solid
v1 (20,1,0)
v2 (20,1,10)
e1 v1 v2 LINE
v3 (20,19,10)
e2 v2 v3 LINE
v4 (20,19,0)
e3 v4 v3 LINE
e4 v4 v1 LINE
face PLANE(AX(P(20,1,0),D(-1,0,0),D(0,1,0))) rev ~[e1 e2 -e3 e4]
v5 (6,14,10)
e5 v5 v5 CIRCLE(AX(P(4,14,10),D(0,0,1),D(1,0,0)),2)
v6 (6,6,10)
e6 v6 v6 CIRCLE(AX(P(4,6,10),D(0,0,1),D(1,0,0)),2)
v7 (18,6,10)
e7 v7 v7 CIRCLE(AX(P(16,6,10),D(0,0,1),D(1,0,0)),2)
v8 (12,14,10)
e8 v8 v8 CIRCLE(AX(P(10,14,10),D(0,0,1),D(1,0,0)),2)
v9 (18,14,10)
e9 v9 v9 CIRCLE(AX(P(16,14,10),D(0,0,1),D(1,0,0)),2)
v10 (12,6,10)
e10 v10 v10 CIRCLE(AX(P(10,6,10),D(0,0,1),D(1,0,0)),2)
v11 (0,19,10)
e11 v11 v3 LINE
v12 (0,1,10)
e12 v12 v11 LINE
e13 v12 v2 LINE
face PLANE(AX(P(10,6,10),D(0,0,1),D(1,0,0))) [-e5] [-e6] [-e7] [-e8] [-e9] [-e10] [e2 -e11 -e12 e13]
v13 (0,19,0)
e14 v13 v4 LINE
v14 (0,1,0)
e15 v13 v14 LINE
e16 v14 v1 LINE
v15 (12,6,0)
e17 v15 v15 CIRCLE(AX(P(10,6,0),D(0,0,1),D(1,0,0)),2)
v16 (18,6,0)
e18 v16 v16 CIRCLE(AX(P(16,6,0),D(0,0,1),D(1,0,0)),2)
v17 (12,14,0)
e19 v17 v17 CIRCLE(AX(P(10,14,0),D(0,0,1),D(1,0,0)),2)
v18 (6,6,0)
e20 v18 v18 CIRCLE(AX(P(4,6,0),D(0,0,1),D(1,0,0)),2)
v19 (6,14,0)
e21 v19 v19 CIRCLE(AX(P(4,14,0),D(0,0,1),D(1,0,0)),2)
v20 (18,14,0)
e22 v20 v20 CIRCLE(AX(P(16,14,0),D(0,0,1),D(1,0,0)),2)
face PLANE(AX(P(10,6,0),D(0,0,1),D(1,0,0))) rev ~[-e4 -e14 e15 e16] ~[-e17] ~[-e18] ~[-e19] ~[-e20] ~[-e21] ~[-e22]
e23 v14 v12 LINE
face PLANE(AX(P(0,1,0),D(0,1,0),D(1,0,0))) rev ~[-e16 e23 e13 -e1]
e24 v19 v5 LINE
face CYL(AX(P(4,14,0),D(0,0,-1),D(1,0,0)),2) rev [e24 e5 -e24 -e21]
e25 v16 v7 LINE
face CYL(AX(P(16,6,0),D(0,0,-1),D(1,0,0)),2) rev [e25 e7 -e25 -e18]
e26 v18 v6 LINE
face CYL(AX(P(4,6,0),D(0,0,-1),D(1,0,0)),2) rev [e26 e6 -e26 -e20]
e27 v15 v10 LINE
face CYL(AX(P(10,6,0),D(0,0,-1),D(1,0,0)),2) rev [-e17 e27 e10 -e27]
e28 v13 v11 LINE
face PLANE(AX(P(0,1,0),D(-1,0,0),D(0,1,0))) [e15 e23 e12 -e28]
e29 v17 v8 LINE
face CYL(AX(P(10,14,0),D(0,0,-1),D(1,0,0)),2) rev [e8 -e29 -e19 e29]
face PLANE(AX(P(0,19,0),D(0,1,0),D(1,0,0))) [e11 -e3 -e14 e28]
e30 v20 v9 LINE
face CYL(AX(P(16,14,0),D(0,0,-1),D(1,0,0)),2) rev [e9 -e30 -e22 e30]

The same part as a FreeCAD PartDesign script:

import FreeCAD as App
import Part
import Sketcher

V = App.Vector

doc = App.newDocument("Part")
params = doc.addObject("Spreadsheet::Sheet", "Params")
for row, (alias, value) in enumerate([
    ("sketch1_diameter", "4 mm"),
    ("pad1_length", "10 mm"),
    ("sketch2_diameter", "4 mm"),
    ("pad2_length", "10 mm"),
    ("sketch3_diameter", "4 mm"),
    ("pad3_length", "10 mm"),
    ("sketch4_width", "20 mm"),
    ("sketch4_height", "10 mm"),
    ("pad4_length", "10 mm"),
    ("sketch5_diameter", "4 mm"),
    ("pad5_length", "10 mm"),
    ("sketch6_diameter", "4 mm"),
    ("pad6_length", "10 mm"),
    ("sketch7_diameter", "4 mm"),
    ("pad7_length", "10 mm"),
    ("sketch8_width", "20 mm"),
    ("sketch8_height", "10 mm"),
    ("pad8_length", "10 mm"),
], start=1):
    params.set(f"A{row}", alias)
    params.set(f"B{row}", "=" + value)
    params.setAlias(f"B{row}", alias)

body = doc.addObject("PartDesign::Body", "Body")

# Sketch on XY plane
sketch1 = body.newObject("Sketcher::SketchObject", "Sketch")
sketch1.AttachmentSupport = (doc.getObject("XY_Plane"), [""])
sketch1.MapMode = "FlatFace"
sketch1.addGeometry(Part.Circle(V(10, 5, 0), V(0, 0, 1), 2), False)
sketch1.addConstraint(Sketcher.Constraint("Diameter", 0, 4.0))
sketch1.addConstraint(Sketcher.Constraint("DistanceX", -1, 1, 0, 3, 10.0))
sketch1.addConstraint(Sketcher.Constraint("DistanceY", -1, 1, 0, 3, 5.0))
sketch1.setExpression("Constraints[0]", "Params.sketch1_diameter")
pad1 = body.newObject("PartDesign::Pad", "Pad")
pad1.Profile = sketch1
pad1.setExpression("Length", "Params.pad1_length")
body2 = doc.addObject("PartDesign::Body", "Body001")

# Sketch on XY plane
sketch2 = body2.newObject("Sketcher::SketchObject", "Sketch001")
sketch2.AttachmentSupport = (doc.getObject("XY_Plane001"), [""])
sketch2.MapMode = "FlatFace"
sketch2.addGeometry(Part.Circle(V(16, 5, 0), V(0, 0, 1), 2), False)
sketch2.addConstraint(Sketcher.Constraint("Diameter", 0, 4.0))
sketch2.addConstraint(Sketcher.Constraint("DistanceX", -1, 1, 0, 3, 16.0))
sketch2.addConstraint(Sketcher.Constraint("DistanceY", -1, 1, 0, 3, 5.0))
sketch2.setExpression("Constraints[0]", "Params.sketch2_diameter")
pad2 = body2.newObject("PartDesign::Pad", "Pad001")
pad2.Profile = sketch2
pad2.setExpression("Length", "Params.pad2_length")
body3 = doc.addObject("PartDesign::Body", "Body002")

# Sketch on XY plane
sketch3 = body3.newObject("Sketcher::SketchObject", "Sketch002")
sketch3.AttachmentSupport = (doc.getObject("XY_Plane002"), [""])
sketch3.MapMode = "FlatFace"
sketch3.addGeometry(Part.Circle(V(4, 5, 0), V(0, 0, 1), 2), False)
sketch3.addConstraint(Sketcher.Constraint("Diameter", 0, 4.0))
sketch3.addConstraint(Sketcher.Constraint("DistanceX", -1, 1, 0, 3, 4.0))
sketch3.addConstraint(Sketcher.Constraint("DistanceY", -1, 1, 0, 3, 5.0))
sketch3.setExpression("Constraints[0]", "Params.sketch3_diameter")
pad3 = body3.newObject("PartDesign::Pad", "Pad002")
pad3.Profile = sketch3
pad3.setExpression("Length", "Params.pad3_length")
body4 = doc.addObject("PartDesign::Body", "Body003")

# Sketch on XY plane
sketch4 = body4.newObject("Sketcher::SketchObject", "Sketch003")
sketch4.AttachmentSupport = (doc.getObject("XY_Plane003"), [""])
sketch4.MapMode = "FlatFace"
sketch4.addGeometry(Part.LineSegment(V(0, 10, 0), V(0, 0, 0)), False)
sketch4.addGeometry(Part.LineSegment(V(0, 0, 0), V(20, 0, 0)), False)
sketch4.addGeometry(Part.LineSegment(V(20, 0, 0), V(20, 10, 0)), False)
sketch4.addGeometry(Part.LineSegment(V(20, 10, 0), V(0, 10, 0)), False)
sketch4.addConstraint(Sketcher.Constraint("Coincident", 0, 2, 1, 1))
sketch4.addConstraint(Sketcher.Constraint("Coincident", 1, 2, 2, 1))
sketch4.addConstraint(Sketcher.Constraint("Coincident", 2, 2, 3, 1))
sketch4.addConstraint(Sketcher.Constraint("Coincident", 3, 2, 0, 1))
sketch4.addConstraint(Sketcher.Constraint("Vertical", 0))
sketch4.addConstraint(Sketcher.Constraint("Horizontal", 1))
sketch4.addConstraint(Sketcher.Constraint("Vertical", 2))
sketch4.addConstraint(Sketcher.Constraint("Horizontal", 3))
sketch4.addConstraint(Sketcher.Constraint("Coincident", 0, 2, -1, 1))
sketch4.addConstraint(Sketcher.Constraint("DistanceX", 1, 1, 1, 2, 20.0))
sketch4.addConstraint(Sketcher.Constraint("DistanceY", 0, 2, 0, 1, 10.0))
sketch4.setExpression("Constraints[9]", "Params.sketch4_width")
sketch4.setExpression("Constraints[10]", "Params.sketch4_height")
pad4 = body4.newObject("PartDesign::Pad", "Pad003")
pad4.Profile = sketch4
pad4.setExpression("Length", "Params.pad4_length")
doc.recompute()

boolean = body4.newObject("PartDesign::Boolean", "Boolean")
boolean.Type = "Cut"
boolean.addObjects([body3])
doc.recompute()

boolean2 = body4.newObject("PartDesign::Boolean", "Boolean001")
boolean2.Type = "Cut"
boolean2.addObjects([body2])
doc.recompute()

boolean3 = body4.newObject("PartDesign::Boolean", "Boolean002")
boolean3.Type = "Cut"
boolean3.addObjects([body])
body5 = doc.addObject("PartDesign::Body", "Body004")
doc.recompute()

body4.Placement = App.Placement(V(0, 9, 0), App.Rotation(V(0, 0, 1), 0))
boolean4 = body5.newObject("PartDesign::Boolean", "Boolean003")
boolean4.Type = "Fuse"
boolean4.addObjects([body4])
body6 = doc.addObject("PartDesign::Body", "Body005")

# Sketch on XY plane
sketch5 = body6.newObject("Sketcher::SketchObject", "Sketch004")
sketch5.AttachmentSupport = (doc.getObject("XY_Plane005"), [""])
sketch5.MapMode = "FlatFace"
sketch5.addGeometry(Part.Circle(V(10, 5, 0), V(0, 0, 1), 2), False)
sketch5.addConstraint(Sketcher.Constraint("Diameter", 0, 4.0))
sketch5.addConstraint(Sketcher.Constraint("DistanceX", -1, 1, 0, 3, 10.0))
sketch5.addConstraint(Sketcher.Constraint("DistanceY", -1, 1, 0, 3, 5.0))
sketch5.setExpression("Constraints[0]", "Params.sketch5_diameter")
pad5 = body6.newObject("PartDesign::Pad", "Pad004")
pad5.Profile = sketch5
pad5.setExpression("Length", "Params.pad5_length")
body7 = doc.addObject("PartDesign::Body", "Body006")

# Sketch on XY plane
sketch6 = body7.newObject("Sketcher::SketchObject", "Sketch005")
sketch6.AttachmentSupport = (doc.getObject("XY_Plane006"), [""])
sketch6.MapMode = "FlatFace"
sketch6.addGeometry(Part.Circle(V(16, 5, 0), V(0, 0, 1), 2), False)
sketch6.addConstraint(Sketcher.Constraint("Diameter", 0, 4.0))
sketch6.addConstraint(Sketcher.Constraint("DistanceX", -1, 1, 0, 3, 16.0))
sketch6.addConstraint(Sketcher.Constraint("DistanceY", -1, 1, 0, 3, 5.0))
sketch6.setExpression("Constraints[0]", "Params.sketch6_diameter")
pad6 = body7.newObject("PartDesign::Pad", "Pad005")
pad6.Profile = sketch6
pad6.setExpression("Length", "Params.pad6_length")
body8 = doc.addObject("PartDesign::Body", "Body007")

# Sketch on XY plane
sketch7 = body8.newObject("Sketcher::SketchObject", "Sketch006")
sketch7.AttachmentSupport = (doc.getObject("XY_Plane007"), [""])
sketch7.MapMode = "FlatFace"
sketch7.addGeometry(Part.Circle(V(4, 5, 0), V(0, 0, 1), 2), False)
sketch7.addConstraint(Sketcher.Constraint("Diameter", 0, 4.0))
sketch7.addConstraint(Sketcher.Constraint("DistanceX", -1, 1, 0, 3, 4.0))
sketch7.addConstraint(Sketcher.Constraint("DistanceY", -1, 1, 0, 3, 5.0))
sketch7.setExpression("Constraints[0]", "Params.sketch7_diameter")
pad7 = body8.newObject("PartDesign::Pad", "Pad006")
pad7.Profile = sketch7
pad7.setExpression("Length", "Params.pad7_length")
body9 = doc.addObject("PartDesign::Body", "Body008")

# Sketch on XY plane
sketch8 = body9.newObject("Sketcher::SketchObject", "Sketch007")
sketch8.AttachmentSupport = (doc.getObject("XY_Plane008"), [""])
sketch8.MapMode = "FlatFace"
sketch8.addGeometry(Part.LineSegment(V(0, 10, 0), V(0, 0, 0)), False)
sketch8.addGeometry(Part.LineSegment(V(0, 0, 0), V(20, 0, 0)), False)
sketch8.addGeometry(Part.LineSegment(V(20, 0, 0), V(20, 10, 0)), False)
sketch8.addGeometry(Part.LineSegment(V(20, 10, 0), V(0, 10, 0)), False)
sketch8.addConstraint(Sketcher.Constraint("Coincident", 0, 2, 1, 1))
sketch8.addConstraint(Sketcher.Constraint("Coincident", 1, 2, 2, 1))
sketch8.addConstraint(Sketcher.Constraint("Coincident", 2, 2, 3, 1))
sketch8.addConstraint(Sketcher.Constraint("Coincident", 3, 2, 0, 1))
sketch8.addConstraint(Sketcher.Constraint("Vertical", 0))
sketch8.addConstraint(Sketcher.Constraint("Horizontal", 1))
sketch8.addConstraint(Sketcher.Constraint("Vertical", 2))
sketch8.addConstraint(Sketcher.Constraint("Horizontal", 3))
sketch8.addConstraint(Sketcher.Constraint("Coincident", 0, 2, -1, 1))
sketch8.addConstraint(Sketcher.Constraint("DistanceX", 1, 1, 1, 2, 20.0))
sketch8.addConstraint(Sketcher.Constraint("DistanceY", 0, 2, 0, 1, 10.0))
sketch8.setExpression("Constraints[9]", "Params.sketch8_width")
sketch8.setExpression("Constraints[10]", "Params.sketch8_height")
pad8 = body9.newObject("PartDesign::Pad", "Pad007")
pad8.Profile = sketch8
pad8.setExpression("Length", "Params.pad8_length")
doc.recompute()

boolean5 = body9.newObject("PartDesign::Boolean", "Boolean004")
boolean5.Type = "Cut"
boolean5.addObjects([body8])
doc.recompute()

boolean6 = body9.newObject("PartDesign::Boolean", "Boolean005")
boolean6.Type = "Cut"
boolean6.addObjects([body7])
doc.recompute()

boolean7 = body9.newObject("PartDesign::Boolean", "Boolean006")
boolean7.Type = "Cut"
boolean7.addObjects([body6])
body10 = doc.addObject("PartDesign::Body", "Body009")
doc.recompute()

body9.Placement = App.Placement(V(0, 1, 0), App.Rotation(V(0, 0, 1), 0))
boolean8 = body10.newObject("PartDesign::Boolean", "Boolean007")
boolean8.Type = "Fuse"
boolean8.addObjects([body9])
doc.recompute()

boolean9 = body10.newObject("PartDesign::Boolean", "Boolean008")
boolean9.Type = "Fuse"
boolean9.addObjects([body5])

doc.recompute()
